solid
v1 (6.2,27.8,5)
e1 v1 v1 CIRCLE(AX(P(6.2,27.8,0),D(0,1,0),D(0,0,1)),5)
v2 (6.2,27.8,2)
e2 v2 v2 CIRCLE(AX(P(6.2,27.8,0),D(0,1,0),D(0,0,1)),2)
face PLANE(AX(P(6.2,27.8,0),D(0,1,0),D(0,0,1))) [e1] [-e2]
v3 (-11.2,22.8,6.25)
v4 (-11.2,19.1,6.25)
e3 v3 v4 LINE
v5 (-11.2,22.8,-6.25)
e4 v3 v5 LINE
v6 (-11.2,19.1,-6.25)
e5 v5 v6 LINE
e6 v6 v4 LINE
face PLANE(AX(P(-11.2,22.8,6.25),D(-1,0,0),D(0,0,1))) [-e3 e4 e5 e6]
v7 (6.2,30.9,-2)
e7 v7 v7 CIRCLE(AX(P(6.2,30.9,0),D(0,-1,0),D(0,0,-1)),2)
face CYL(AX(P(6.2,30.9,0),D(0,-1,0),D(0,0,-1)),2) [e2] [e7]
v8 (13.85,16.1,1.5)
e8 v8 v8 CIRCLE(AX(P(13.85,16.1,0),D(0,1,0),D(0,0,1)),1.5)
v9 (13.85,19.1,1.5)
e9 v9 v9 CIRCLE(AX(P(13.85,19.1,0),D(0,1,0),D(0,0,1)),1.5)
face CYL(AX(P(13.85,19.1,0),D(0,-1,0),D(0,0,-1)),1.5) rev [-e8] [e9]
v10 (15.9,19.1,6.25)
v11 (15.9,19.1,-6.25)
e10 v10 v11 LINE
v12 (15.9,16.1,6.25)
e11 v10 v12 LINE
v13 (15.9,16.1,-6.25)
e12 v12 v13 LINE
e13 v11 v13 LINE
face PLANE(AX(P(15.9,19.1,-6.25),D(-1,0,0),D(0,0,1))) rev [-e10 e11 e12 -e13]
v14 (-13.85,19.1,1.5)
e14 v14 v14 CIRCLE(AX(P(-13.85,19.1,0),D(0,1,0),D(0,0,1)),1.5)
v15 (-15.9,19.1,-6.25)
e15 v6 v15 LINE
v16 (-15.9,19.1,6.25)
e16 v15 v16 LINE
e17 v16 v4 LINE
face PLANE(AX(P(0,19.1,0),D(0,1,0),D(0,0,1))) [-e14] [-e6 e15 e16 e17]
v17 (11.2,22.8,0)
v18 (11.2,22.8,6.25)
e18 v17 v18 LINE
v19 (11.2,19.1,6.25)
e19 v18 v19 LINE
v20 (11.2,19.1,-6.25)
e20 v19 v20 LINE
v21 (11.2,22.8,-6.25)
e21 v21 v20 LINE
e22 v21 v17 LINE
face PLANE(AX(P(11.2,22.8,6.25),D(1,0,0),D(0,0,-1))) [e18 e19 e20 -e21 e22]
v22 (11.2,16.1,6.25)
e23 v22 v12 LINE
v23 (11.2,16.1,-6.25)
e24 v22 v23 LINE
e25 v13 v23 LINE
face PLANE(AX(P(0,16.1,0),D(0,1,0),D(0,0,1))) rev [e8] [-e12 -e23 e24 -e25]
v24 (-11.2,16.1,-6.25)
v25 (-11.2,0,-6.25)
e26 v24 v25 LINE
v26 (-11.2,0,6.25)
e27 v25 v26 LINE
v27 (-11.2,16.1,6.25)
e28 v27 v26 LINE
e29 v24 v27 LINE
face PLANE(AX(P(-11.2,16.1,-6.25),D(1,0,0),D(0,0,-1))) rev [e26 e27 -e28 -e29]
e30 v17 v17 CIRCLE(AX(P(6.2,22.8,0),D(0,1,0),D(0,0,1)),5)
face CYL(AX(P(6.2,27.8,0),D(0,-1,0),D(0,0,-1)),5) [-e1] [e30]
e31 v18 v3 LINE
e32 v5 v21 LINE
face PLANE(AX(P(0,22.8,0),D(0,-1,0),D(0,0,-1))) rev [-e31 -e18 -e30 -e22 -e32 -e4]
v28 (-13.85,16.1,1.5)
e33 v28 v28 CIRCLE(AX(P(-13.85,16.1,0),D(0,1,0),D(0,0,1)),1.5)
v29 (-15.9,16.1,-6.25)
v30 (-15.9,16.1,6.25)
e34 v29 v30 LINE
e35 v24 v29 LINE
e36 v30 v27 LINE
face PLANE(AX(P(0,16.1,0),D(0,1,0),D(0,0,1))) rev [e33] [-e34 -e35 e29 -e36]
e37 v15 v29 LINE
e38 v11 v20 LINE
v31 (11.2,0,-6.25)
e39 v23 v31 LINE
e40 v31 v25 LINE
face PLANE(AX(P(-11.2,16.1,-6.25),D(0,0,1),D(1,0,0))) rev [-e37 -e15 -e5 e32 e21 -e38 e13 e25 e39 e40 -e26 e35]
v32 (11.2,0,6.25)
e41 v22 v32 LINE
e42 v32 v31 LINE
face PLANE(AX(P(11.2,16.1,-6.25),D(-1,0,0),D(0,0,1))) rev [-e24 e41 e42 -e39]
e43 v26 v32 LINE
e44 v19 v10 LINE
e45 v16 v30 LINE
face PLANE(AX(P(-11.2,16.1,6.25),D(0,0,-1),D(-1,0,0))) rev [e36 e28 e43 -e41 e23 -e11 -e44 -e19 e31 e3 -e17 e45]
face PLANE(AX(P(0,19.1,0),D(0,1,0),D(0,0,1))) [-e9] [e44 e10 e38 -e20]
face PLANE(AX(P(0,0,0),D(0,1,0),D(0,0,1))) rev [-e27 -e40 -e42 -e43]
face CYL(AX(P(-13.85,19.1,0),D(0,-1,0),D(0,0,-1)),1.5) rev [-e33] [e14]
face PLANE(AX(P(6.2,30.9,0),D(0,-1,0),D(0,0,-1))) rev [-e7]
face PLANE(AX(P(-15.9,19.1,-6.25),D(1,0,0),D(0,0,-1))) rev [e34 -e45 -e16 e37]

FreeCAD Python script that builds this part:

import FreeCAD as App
import Part
import Sketcher


def add_polygon(sketch, points):
    """Adds a closed chain of lines whose ends are joined by coincident constraints."""
    first, n = sketch.GeometryCount, len(points)
    for a, b in zip(points, points[1:] + points[:1]):
        sketch.addGeometry(Part.LineSegment(App.Vector(*a, 0), App.Vector(*b, 0)), False)
    for i in range(n):
        sketch.addConstraint(Sketcher.Constraint("Coincident", first + i, 2, first + (i + 1) % n, 1))

doc = App.newDocument("Part")
body = doc.addObject("PartDesign::Body", "Body")

# Sketch on XZ plane
sketch1 = doc.addObject("Sketcher::SketchObject", "Sketch")
body.addObject(sketch1)
sketch1.AttachmentSupport = (doc.XZ_Plane, [""])
sketch1.MapMode = "FlatFace"
add_polygon(sketch1, [(-11.2, -6.25), (-11.2, 6.25), (11.2, 6.25), (11.2, -6.25)])  # lines 0-3
sketch1.addConstraint(Sketcher.Constraint("Vertical", 0))
sketch1.addConstraint(Sketcher.Constraint("Horizontal", 1))
sketch1.addConstraint(Sketcher.Constraint("Vertical", 2))
sketch1.addConstraint(Sketcher.Constraint("Horizontal", 3))
sketch1.addConstraint(Sketcher.Constraint("Symmetric", 0, 2, 2, 2, -1, 1))
sketch1.addConstraint(Sketcher.Constraint("DistanceX", 1, 1, 1, 2, 22.4))
sketch1.addConstraint(Sketcher.Constraint("DistanceY", 0, 1, 0, 2, 12.5))
pad1 = doc.addObject("PartDesign::Pad", "Pad")
body.addObject(pad1)
pad1.Profile = sketch1
pad1.Length = 16.1
pad1.Reversed = True

# Sketch on XZ plane
sketch2 = doc.addObject("Sketcher::SketchObject", "Sketch001")
body.addObject(sketch2)
sketch2.AttachmentSupport = (doc.XZ_Plane, [""])
sketch2.MapMode = "FlatFace"
sketch2.AttachmentOffset = App.Placement(App.Vector(0, 0, -16.1), App.Rotation())
add_polygon(sketch2, [(-15.9, -6.25), (-15.9, 6.25), (15.9, 6.25), (15.9, -6.25)])  # lines 0-3
sketch2.addGeometry(Part.Circle(App.Vector(-13.85, 0, 0), App.Vector(0, 0, 1), 1.5), False)  # 4
sketch2.addGeometry(Part.Circle(App.Vector(13.85, 0, 0), App.Vector(0, 0, 1), 1.5), False)  # 5
sketch2.addConstraint(Sketcher.Constraint("Vertical", 0))
sketch2.addConstraint(Sketcher.Constraint("Horizontal", 1))
sketch2.addConstraint(Sketcher.Constraint("Vertical", 2))
sketch2.addConstraint(Sketcher.Constraint("Horizontal", 3))
sketch2.addConstraint(Sketcher.Constraint("Equal", 4, 5))
sketch2.addConstraint(Sketcher.Constraint("Symmetric", 4, 3, 5, 3, -1, 1))
sketch2.addConstraint(Sketcher.Constraint("Symmetric", 0, 2, 2, 2, -1, 1))
sketch2.addConstraint(Sketcher.Constraint("PointOnObject", 4, 3, -1))
sketch2.addConstraint(Sketcher.Constraint("Diameter", 4, 3.0))
sketch2.addConstraint(Sketcher.Constraint("DistanceX", 1, 1, 1, 2, 31.8))
sketch2.addConstraint(Sketcher.Constraint("DistanceY", 0, 1, 0, 2, 12.5))
sketch2.addConstraint(Sketcher.Constraint("DistanceX", 4, 3, 5, 3, 27.7))
pad2 = doc.addObject("PartDesign::Pad", "Pad001")
body.addObject(pad2)
pad2.Profile = sketch2
pad2.Length = 3
pad2.Reversed = True

# Sketch on XZ plane
sketch3 = doc.addObject("Sketcher::SketchObject", "Sketch002")
body.addObject(sketch3)
sketch3.AttachmentSupport = (doc.XZ_Plane, [""])
sketch3.MapMode = "FlatFace"
add_polygon(sketch3, [(-11.2, 6.25), (-11.2, -6.25), (11.2, -6.25), (11.2, 6.25)])  # lines 0-3
sketch3.addConstraint(Sketcher.Constraint("Vertical", 0))
sketch3.addConstraint(Sketcher.Constraint("Horizontal", 1))
sketch3.addConstraint(Sketcher.Constraint("Vertical", 2))
sketch3.addConstraint(Sketcher.Constraint("Horizontal", 3))
sketch3.addConstraint(Sketcher.Constraint("Symmetric", 0, 2, 2, 2, -1, 1))
sketch3.addConstraint(Sketcher.Constraint("DistanceX", 1, 1, 1, 2, 22.4))
sketch3.addConstraint(Sketcher.Constraint("DistanceY", 0, 2, 0, 1, 12.5))
pad3 = doc.addObject("PartDesign::Pad", "Pad002")
body.addObject(pad3)
pad3.Profile = sketch3
pad3.Length = 22.8
pad3.Reversed = True

# Sketch on XZ plane
sketch4 = doc.addObject("Sketcher::SketchObject", "Sketch003")
body.addObject(sketch4)
sketch4.AttachmentSupport = (doc.XZ_Plane, [""])
sketch4.MapMode = "FlatFace"
sketch4.AttachmentOffset = App.Placement(App.Vector(0, 0, -22.8), App.Rotation())
sketch4.addGeometry(Part.Circle(App.Vector(6.2, 0, 0), App.Vector(0, 0, 1), 5), False)
sketch4.addConstraint(Sketcher.Constraint("PointOnObject", 0, 3, -1))
sketch4.addConstraint(Sketcher.Constraint("Diameter", 0, 10.0))
sketch4.addConstraint(Sketcher.Constraint("DistanceX", -1, 1, 0, 3, 6.2))
pad4 = doc.addObject("PartDesign::Pad", "Pad003")
body.addObject(pad4)
pad4.Profile = sketch4
pad4.Length = 5
pad4.Reversed = True

# Sketch on XZ plane
sketch5 = doc.addObject("Sketcher::SketchObject", "Sketch004")
body.addObject(sketch5)
sketch5.AttachmentSupport = (doc.XZ_Plane, [""])
sketch5.MapMode = "FlatFace"
sketch5.addGeometry(Part.Circle(App.Vector(6.2, 0, 0), App.Vector(0, 0, 1), 2), False)
sketch5.addConstraint(Sketcher.Constraint("PointOnObject", 0, 3, -1))
sketch5.addConstraint(Sketcher.Constraint("Diameter", 0, 4.0))
sketch5.addConstraint(Sketcher.Constraint("DistanceX", -1, 1, 0, 3, 6.2))
pad5 = doc.addObject("PartDesign::Pad", "Pad004")
body.addObject(pad5)
pad5.Profile = sketch5
pad5.Length = 30.9
pad5.Reversed = True

doc.recompute()
